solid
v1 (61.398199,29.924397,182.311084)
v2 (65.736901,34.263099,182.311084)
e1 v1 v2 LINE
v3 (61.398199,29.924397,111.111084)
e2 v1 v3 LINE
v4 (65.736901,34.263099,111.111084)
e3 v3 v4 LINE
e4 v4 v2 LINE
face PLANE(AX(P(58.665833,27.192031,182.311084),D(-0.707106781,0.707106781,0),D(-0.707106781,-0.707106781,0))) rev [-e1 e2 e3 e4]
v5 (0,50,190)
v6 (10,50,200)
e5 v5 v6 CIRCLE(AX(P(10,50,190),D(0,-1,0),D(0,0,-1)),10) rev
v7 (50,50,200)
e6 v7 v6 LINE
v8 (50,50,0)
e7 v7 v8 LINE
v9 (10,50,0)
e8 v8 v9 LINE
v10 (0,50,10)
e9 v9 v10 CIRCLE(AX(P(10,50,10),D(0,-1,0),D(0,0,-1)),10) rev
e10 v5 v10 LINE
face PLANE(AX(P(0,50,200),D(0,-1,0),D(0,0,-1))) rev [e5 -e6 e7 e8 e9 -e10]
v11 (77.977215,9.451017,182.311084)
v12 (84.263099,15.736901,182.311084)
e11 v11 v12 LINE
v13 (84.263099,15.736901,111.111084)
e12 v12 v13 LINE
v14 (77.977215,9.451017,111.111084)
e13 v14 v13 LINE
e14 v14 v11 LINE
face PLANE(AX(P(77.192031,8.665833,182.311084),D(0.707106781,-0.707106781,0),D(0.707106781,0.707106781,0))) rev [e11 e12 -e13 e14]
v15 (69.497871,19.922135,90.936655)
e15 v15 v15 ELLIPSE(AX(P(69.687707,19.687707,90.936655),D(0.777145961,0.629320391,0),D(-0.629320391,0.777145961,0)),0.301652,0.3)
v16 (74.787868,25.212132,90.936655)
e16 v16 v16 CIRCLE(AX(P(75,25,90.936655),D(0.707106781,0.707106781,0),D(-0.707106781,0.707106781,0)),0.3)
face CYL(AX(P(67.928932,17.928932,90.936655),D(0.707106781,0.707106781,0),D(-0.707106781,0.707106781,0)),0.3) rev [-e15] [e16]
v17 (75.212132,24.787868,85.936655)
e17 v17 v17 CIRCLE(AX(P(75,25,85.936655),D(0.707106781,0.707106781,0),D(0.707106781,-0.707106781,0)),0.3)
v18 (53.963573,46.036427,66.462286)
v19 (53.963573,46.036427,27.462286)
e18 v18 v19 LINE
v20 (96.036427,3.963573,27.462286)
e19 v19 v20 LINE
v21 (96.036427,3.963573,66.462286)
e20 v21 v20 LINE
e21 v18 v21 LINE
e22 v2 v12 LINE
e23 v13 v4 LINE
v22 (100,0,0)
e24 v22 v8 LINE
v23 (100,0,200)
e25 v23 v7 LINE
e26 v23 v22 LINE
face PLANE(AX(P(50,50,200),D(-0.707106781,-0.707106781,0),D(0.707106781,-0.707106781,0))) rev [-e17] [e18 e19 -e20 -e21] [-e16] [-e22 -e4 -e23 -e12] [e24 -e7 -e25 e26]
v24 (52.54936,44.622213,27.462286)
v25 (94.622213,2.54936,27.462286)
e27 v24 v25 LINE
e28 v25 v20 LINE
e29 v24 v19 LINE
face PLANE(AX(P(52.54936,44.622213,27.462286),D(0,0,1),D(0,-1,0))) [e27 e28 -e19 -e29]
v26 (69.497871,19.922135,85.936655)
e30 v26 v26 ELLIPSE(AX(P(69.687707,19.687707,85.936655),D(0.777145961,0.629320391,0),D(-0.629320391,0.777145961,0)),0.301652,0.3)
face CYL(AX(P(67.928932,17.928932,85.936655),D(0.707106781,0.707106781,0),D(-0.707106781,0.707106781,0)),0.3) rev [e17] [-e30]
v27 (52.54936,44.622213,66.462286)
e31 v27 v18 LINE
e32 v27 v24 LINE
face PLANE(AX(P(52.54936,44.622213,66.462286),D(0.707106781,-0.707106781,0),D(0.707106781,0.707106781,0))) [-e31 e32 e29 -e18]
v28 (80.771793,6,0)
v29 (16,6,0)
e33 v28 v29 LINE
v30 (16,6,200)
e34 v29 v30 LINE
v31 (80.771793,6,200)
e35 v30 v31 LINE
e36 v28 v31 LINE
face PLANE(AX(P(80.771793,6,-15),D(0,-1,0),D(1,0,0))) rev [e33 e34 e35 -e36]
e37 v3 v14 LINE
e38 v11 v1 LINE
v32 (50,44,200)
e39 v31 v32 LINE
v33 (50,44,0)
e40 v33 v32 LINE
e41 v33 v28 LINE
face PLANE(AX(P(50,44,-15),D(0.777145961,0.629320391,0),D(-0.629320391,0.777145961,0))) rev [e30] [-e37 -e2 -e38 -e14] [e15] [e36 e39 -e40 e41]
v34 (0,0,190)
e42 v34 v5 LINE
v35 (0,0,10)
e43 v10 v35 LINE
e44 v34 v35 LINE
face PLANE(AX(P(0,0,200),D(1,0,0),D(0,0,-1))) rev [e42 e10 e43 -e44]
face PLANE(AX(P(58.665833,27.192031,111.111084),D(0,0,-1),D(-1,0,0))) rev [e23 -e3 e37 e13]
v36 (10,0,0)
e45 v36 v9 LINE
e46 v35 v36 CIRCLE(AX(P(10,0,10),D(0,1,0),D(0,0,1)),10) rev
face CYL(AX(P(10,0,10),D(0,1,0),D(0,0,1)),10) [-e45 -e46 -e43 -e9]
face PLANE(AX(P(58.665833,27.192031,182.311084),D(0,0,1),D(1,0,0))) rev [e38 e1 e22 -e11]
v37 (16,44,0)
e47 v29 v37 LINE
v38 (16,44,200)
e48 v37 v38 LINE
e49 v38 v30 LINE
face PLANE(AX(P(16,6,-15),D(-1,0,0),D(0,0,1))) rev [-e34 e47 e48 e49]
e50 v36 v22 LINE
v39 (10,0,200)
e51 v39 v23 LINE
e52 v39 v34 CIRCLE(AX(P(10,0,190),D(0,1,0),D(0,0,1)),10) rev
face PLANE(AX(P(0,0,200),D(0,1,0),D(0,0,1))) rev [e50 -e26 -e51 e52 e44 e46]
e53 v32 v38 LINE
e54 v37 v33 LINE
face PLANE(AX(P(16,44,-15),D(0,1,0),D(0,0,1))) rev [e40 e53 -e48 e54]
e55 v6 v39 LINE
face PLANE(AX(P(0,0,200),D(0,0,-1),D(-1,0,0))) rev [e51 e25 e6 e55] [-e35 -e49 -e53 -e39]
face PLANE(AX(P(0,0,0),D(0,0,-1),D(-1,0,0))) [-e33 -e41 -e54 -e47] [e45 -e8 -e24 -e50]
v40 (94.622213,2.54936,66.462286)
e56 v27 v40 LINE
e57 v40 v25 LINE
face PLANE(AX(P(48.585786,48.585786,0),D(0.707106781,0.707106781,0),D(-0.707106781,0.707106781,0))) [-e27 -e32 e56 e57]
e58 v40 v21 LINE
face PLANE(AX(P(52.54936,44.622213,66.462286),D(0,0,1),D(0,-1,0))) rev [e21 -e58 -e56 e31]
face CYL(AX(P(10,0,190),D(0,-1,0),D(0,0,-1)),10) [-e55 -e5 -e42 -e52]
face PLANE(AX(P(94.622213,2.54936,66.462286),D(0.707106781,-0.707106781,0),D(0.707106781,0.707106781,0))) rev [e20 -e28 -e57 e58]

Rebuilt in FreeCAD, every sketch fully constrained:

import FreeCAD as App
import Part
import Sketcher

V = App.Vector
Q = App.Units.Quantity


def edges_at(feature, points):
    """Names of the edges that pass closest to the given points."""
    edges = feature.Shape.Edges
    near = lambda p: min(range(len(edges)), key=lambda i: edges[i].distToShape(Part.Vertex(*p))[0])
    return sorted({f"Edge{near(p) + 1}" for p in points})

doc = App.newDocument("Part")
params = doc.addObject("Spreadsheet::Sheet", "Params")
for row, (alias, value) in enumerate([
    ("sketch1_width", "100 mm"),
    ("sketch1_width2", "50 mm"),
    ("pad1_length", "200 mm"),
    ("fillet_radius", "10 mm"),
    ("sketch2_width", "39 mm"),
    ("sketch2_height", "59.5 mm"),
    ("pocket1_length", "2 mm"),
    ("sketch3_width", "71.2 mm"),
    ("sketch3_height", "26.2 mm"),
    ("pocket2_length", "10 mm"),
    ("sketch4_width", "34 mm"),
    ("sketch4_height", "38 mm"),
    ("pocket3_length", "215 mm"),
    ("sketch5_diameter", "0.6 mm"),
    ("pocket4_length", "10 mm"),
], start=1):
    params.set(f"A{row}", alias)
    params.set(f"B{row}", "=" + value)
    params.setAlias(f"B{row}", alias)

body = doc.addObject("PartDesign::Body", "Body")

sketch1 = body.newObject("Sketcher::SketchObject", "Sketch")
sketch1.AttachmentSupport = (doc.getObject("XY_Plane"), [""])
sketch1.MapMode = "FlatFace"
sketch1.addGeometry([
    Part.LineSegment(V(0, 0, 0), V(100, 0, 0)),
    Part.LineSegment(V(100, 0, 0), V(50, 50, 0)),
    Part.LineSegment(V(50, 50, 0), V(0, 50, 0)),
    Part.LineSegment(V(0, 50, 0), V(0, 0, 0)),
], False)
sketch1.addConstraint([
    Sketcher.Constraint("Coincident", 0, 2, 1, 1),
    Sketcher.Constraint("Coincident", 1, 2, 2, 1),
    Sketcher.Constraint("Coincident", 2, 2, 3, 1),
    Sketcher.Constraint("Coincident", 3, 2, 0, 1),
    Sketcher.Constraint("Horizontal", 0),
    Sketcher.Constraint("Horizontal", 2),
    Sketcher.Constraint("Vertical", 3),
    Sketcher.Constraint("Coincident", 3, 2, -1, 1),
    Sketcher.Constraint("Equal", 2, 3),
    Sketcher.Constraint("DistanceX", 0, 1, 0, 2, 100.0),
    Sketcher.Constraint("DistanceX", 2, 2, 2, 1, 50.0),
])
sketch1.setExpression("Constraints[9]", "Params.sketch1_width")
sketch1.setExpression("Constraints[10]", "Params.sketch1_width2")
pad1 = body.newObject("PartDesign::Pad", "Pad")
pad1.Profile = sketch1
pad1.setExpression("Length", "Params.pad1_length")
doc.recompute()

fillet = body.newObject("PartDesign::Fillet", "Fillet")
fillet.Base = (pad1, edges_at(pad1, [(0, 25, 200), (0, 25, 0)]))
fillet.setExpression("Radius", "Params.fillet_radius")

sketch2 = body.newObject("Sketcher::SketchObject", "Sketch001")
sketch2.Placement = App.Placement(V(50, 50, 0), App.Rotation(V(0, 0, -1), V(-0.707106781, 0.707106781, 0), V(0.707106781, 0.707106781, 0), "ZXY"))
sketch2.addGeometry([
    Part.LineSegment(V(-66.462286, -5.605339, 0), V(-66.462286, -65.105339, 0)),
    Part.LineSegment(V(-66.462286, -65.105339, 0), V(-27.462286, -65.105339, 0)),
    Part.LineSegment(V(-27.462286, -65.105339, 0), V(-27.462286, -5.605339, 0)),
    Part.LineSegment(V(-27.462286, -5.605339, 0), V(-66.462286, -5.605339, 0)),
], False)
sketch2.addConstraint([
    Sketcher.Constraint("Coincident", 0, 2, 1, 1),
    Sketcher.Constraint("Coincident", 1, 2, 2, 1),
    Sketcher.Constraint("Coincident", 2, 2, 3, 1),
    Sketcher.Constraint("Coincident", 3, 2, 0, 1),
    Sketcher.Constraint("Vertical", 0),
    Sketcher.Constraint("Horizontal", 1),
    Sketcher.Constraint("Vertical", 2),
    Sketcher.Constraint("Horizontal", 3),
    Sketcher.Constraint("DistanceX", 1, 1, 1, 2, 39.0),
    Sketcher.Constraint("DistanceY", 0, 2, 0, 1, 59.5),
    Sketcher.Constraint("DistanceY", 0, 2, -1, 1, 65.105339),
    Sketcher.Constraint("DistanceX", 0, 2, -1, 1, 66.462286),
])
sketch2.setExpression("Constraints[8]", "Params.sketch2_width")
sketch2.setExpression("Constraints[9]", "Params.sketch2_height")
pocket1 = body.newObject("PartDesign::Pocket", "Pocket")
pocket1.Profile = sketch2
pocket1.setExpression("Length", "Params.pocket1_length")

sketch3 = body.newObject("Sketcher::SketchObject", "Sketch002")
sketch3.Placement = App.Placement(V(50, 50, 0), App.Rotation(V(0, 0, -1), V(-0.707106781, 0.707106781, 0), V(0.707106781, 0.707106781, 0), "ZXY"))
sketch3.addGeometry([
    Part.LineSegment(V(-182.311084, -22.255339, 0), V(-182.311084, -48.455339, 0)),
    Part.LineSegment(V(-182.311084, -48.455339, 0), V(-111.111084, -48.455339, 0)),
    Part.LineSegment(V(-111.111084, -48.455339, 0), V(-111.111084, -22.255339, 0)),
    Part.LineSegment(V(-111.111084, -22.255339, 0), V(-182.311084, -22.255339, 0)),
], False)
sketch3.addConstraint([
    Sketcher.Constraint("Coincident", 0, 2, 1, 1),
    Sketcher.Constraint("Coincident", 1, 2, 2, 1),
    Sketcher.Constraint("Coincident", 2, 2, 3, 1),
    Sketcher.Constraint("Coincident", 3, 2, 0, 1),
    Sketcher.Constraint("Vertical", 0),
    Sketcher.Constraint("Horizontal", 1),
    Sketcher.Constraint("Vertical", 2),
    Sketcher.Constraint("Horizontal", 3),
    Sketcher.Constraint("DistanceX", 1, 1, 1, 2, 71.2),
    Sketcher.Constraint("DistanceY", 0, 2, 0, 1, 26.2),
    Sketcher.Constraint("DistanceY", 0, 2, -1, 1, 48.455339),
    Sketcher.Constraint("DistanceX", 0, 2, -1, 1, 182.311084),
])
sketch3.setExpression("Constraints[8]", "Params.sketch3_width")
sketch3.setExpression("Constraints[9]", "Params.sketch3_height")
pocket2 = body.newObject("PartDesign::Pocket", "Pocket001")
pocket2.Profile = sketch3
pocket2.setExpression("Length", "Params.pocket2_length")

sketch4 = body.newObject("Sketcher::SketchObject", "Sketch003")
sketch4.AttachmentSupport = (doc.getObject("XY_Plane"), [""])
sketch4.MapMode = "FlatFace"
sketch4.AttachmentOffset = App.Placement(V(0, 0, 200), App.Rotation())
sketch4.addGeometry([
    Part.LineSegment(V(80.771793, 6, 0), V(50, 44, 0)),
    Part.LineSegment(V(50, 44, 0), V(16, 44, 0)),
    Part.LineSegment(V(16, 44, 0), V(16, 6, 0)),
    Part.LineSegment(V(16, 6, 0), V(80.771793, 6, 0)),
], False)
sketch4.addConstraint([
    Sketcher.Constraint("Coincident", 0, 2, 1, 1),
    Sketcher.Constraint("Coincident", 1, 2, 2, 1),
    Sketcher.Constraint("Coincident", 2, 2, 3, 1),
    Sketcher.Constraint("Coincident", 3, 2, 0, 1),
    Sketcher.Constraint("Horizontal", 1),
    Sketcher.Constraint("Vertical", 2),
    Sketcher.Constraint("Horizontal", 3),
    Sketcher.Constraint("DistanceX", 1, 2, 1, 1, 34.0),
    Sketcher.Constraint("DistanceY", 2, 2, 2, 1, 38.0),
    Sketcher.Constraint("Angle", 0, Q("129 deg")),
    Sketcher.Constraint("DistanceX", -1, 1, 0, 2, 50.0),
    Sketcher.Constraint("DistanceY", -1, 1, 0, 2, 44.0),
])
sketch4.setExpression("Constraints[7]", "Params.sketch4_width")
sketch4.setExpression("Constraints[8]", "Params.sketch4_height")
pocket3 = body.newObject("PartDesign::Pocket", "Pocket002")
pocket3.Profile = sketch4
pocket3.setExpression("Length", "Params.pocket3_length")

sketch5 = body.newObject("Sketcher::SketchObject", "Sketch004")
sketch5.Placement = App.Placement(V(50, 50, 0), App.Rotation(V(0, 0, -1), V(-0.707106781, 0.707106781, 0), V(0.707106781, 0.707106781, 0), "ZXY"))
sketch5.addGeometry([
    Part.Circle(V(-90.936655, -35.355339, 0), V(0, 0, 1), 0.3),
    Part.Circle(V(-85.936655, -35.355339, 0), V(0, 0, 1), 0.3),
], False)
sketch5.addConstraint([
    Sketcher.Constraint("Equal", 0, 1),
    Sketcher.Constraint("Horizontal", 0, 3, 1, 3),
    Sketcher.Constraint("Diameter", 0, 0.6),
    Sketcher.Constraint("DistanceX", 0, 3, 1, 3, 5.0),
    Sketcher.Constraint("DistanceY", 0, 3, -1, 1, 35.355339),
    Sketcher.Constraint("DistanceX", 0, 3, -1, 1, 90.936655),
])
sketch5.setExpression("Constraints[2]", "Params.sketch5_diameter")
pocket4 = body.newObject("PartDesign::Pocket", "Pocket003")
pocket4.Profile = sketch5
pocket4.setExpression("Length", "Params.pocket4_length")

doc.recompute()
